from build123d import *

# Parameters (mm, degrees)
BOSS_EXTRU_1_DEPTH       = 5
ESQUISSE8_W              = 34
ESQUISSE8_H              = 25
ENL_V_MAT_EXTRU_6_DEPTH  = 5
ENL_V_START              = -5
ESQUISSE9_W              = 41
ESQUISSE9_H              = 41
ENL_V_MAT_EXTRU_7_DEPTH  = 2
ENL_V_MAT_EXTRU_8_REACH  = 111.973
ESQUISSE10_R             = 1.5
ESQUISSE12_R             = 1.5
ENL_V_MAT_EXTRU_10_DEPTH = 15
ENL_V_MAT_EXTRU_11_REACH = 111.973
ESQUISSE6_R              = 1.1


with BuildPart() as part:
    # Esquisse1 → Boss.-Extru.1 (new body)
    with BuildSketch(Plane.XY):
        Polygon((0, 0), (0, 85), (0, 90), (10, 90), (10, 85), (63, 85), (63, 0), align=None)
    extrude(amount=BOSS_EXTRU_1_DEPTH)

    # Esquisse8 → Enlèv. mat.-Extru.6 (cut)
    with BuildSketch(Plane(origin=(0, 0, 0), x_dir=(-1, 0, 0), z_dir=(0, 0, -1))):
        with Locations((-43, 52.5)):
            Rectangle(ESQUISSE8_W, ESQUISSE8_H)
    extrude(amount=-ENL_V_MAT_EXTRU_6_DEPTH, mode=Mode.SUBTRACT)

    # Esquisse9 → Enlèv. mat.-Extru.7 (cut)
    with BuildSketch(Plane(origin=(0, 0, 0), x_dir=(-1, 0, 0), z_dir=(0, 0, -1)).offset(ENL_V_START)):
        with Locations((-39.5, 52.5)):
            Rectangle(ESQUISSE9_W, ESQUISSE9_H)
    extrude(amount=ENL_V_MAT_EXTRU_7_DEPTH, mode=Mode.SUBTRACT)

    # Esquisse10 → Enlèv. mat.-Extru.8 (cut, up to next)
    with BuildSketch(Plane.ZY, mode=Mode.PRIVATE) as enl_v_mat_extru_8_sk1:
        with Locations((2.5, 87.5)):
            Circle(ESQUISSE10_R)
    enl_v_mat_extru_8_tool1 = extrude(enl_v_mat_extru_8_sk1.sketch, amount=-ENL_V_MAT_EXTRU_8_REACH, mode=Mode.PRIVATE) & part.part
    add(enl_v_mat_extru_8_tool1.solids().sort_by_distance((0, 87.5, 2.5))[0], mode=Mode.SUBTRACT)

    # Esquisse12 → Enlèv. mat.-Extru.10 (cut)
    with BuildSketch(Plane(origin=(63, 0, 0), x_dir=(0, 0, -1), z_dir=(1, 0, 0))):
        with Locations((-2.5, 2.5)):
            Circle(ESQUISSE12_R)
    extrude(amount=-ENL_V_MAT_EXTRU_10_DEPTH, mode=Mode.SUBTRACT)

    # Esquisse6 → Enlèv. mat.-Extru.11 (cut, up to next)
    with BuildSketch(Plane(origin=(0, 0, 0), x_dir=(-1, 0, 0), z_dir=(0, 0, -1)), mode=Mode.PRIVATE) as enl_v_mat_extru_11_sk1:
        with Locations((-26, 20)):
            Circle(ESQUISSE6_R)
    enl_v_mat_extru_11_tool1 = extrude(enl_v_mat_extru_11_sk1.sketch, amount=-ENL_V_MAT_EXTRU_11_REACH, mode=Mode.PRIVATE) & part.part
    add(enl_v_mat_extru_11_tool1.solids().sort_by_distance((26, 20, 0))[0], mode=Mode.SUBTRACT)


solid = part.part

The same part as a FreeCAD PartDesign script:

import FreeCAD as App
import Part
import Sketcher

doc = App.newDocument("Part")
body = doc.addObject("PartDesign::Body", "Body")

# Sketch on XY plane
sketch1 = body.newObject("Sketcher::SketchObject", "Sketch")
sketch1.AttachmentSupport = (doc.getObject("XY_Plane"), [""])
sketch1.MapMode = "FlatFace"
sketch1.addGeometry(Part.LineSegment(App.Vector(0, 90, 0), App.Vector(0, 0, 0)), False)
sketch1.addGeometry(Part.LineSegment(App.Vector(0, 0, 0), App.Vector(63, 0, 0)), False)
sketch1.addGeometry(Part.LineSegment(App.Vector(63, 0, 0), App.Vector(63, 85, 0)), False)
sketch1.addGeometry(Part.LineSegment(App.Vector(63, 85, 0), App.Vector(10, 85, 0)), False)
sketch1.addGeometry(Part.LineSegment(App.Vector(10, 85, 0), App.Vector(10, 90, 0)), False)
sketch1.addGeometry(Part.LineSegment(App.Vector(10, 90, 0), App.Vector(0, 90, 0)), False)
sketch1.addConstraint(Sketcher.Constraint("Coincident", 0, 2, 1, 1))
sketch1.addConstraint(Sketcher.Constraint("Coincident", 1, 2, 2, 1))
sketch1.addConstraint(Sketcher.Constraint("Coincident", 2, 2, 3, 1))
sketch1.addConstraint(Sketcher.Constraint("Coincident", 3, 2, 4, 1))
sketch1.addConstraint(Sketcher.Constraint("Coincident", 4, 2, 5, 1))
sketch1.addConstraint(Sketcher.Constraint("Coincident", 5, 2, 0, 1))
sketch1.addConstraint(Sketcher.Constraint("Vertical", 0))
sketch1.addConstraint(Sketcher.Constraint("Horizontal", 1))
sketch1.addConstraint(Sketcher.Constraint("Vertical", 2))
sketch1.addConstraint(Sketcher.Constraint("Horizontal", 3))
sketch1.addConstraint(Sketcher.Constraint("Vertical", 4))
sketch1.addConstraint(Sketcher.Constraint("Horizontal", 5))
sketch1.addConstraint(Sketcher.Constraint("Coincident", 0, 2, -1, 1))
sketch1.addConstraint(Sketcher.Constraint("DistanceX", 1, 1, 1, 2, 63.0))
sketch1.addConstraint(Sketcher.Constraint("DistanceX", 3, 2, 3, 1, 53.0))
sketch1.addConstraint(Sketcher.Constraint("DistanceY", 0, 2, 0, 1, 90.0))
sketch1.addConstraint(Sketcher.Constraint("DistanceY", 2, 1, 2, 2, 85.0))
pad1 = body.newObject("PartDesign::Pad", "Pad")
pad1.Profile = sketch1
pad1.Length = 5

# Sketch on XY plane
sketch2 = body.newObject("Sketcher::SketchObject", "Sketch001")
sketch2.AttachmentSupport = (doc.getObject("XY_Plane"), [""])
sketch2.MapMode = "FlatFace"
sketch2.addGeometry(Part.LineSegment(App.Vector(60, 65, 0), App.Vector(60, 40, 0)), False)
sketch2.addGeometry(Part.LineSegment(App.Vector(60, 40, 0), App.Vector(26, 40, 0)), False)
sketch2.addGeometry(Part.LineSegment(App.Vector(26, 40, 0), App.Vector(26, 65, 0)), False)
sketch2.addGeometry(Part.LineSegment(App.Vector(26, 65, 0), App.Vector(60, 65, 0)), False)
sketch2.addConstraint(Sketcher.Constraint("Coincident", 0, 2, 1, 1))
sketch2.addConstraint(Sketcher.Constraint("Coincident", 1, 2, 2, 1))
sketch2.addConstraint(Sketcher.Constraint("Coincident", 2, 2, 3, 1))
sketch2.addConstraint(Sketcher.Constraint("Coincident", 3, 2, 0, 1))
sketch2.addConstraint(Sketcher.Constraint("Vertical", 0))
sketch2.addConstraint(Sketcher.Constraint("Horizontal", 1))
sketch2.addConstraint(Sketcher.Constraint("Vertical", 2))
sketch2.addConstraint(Sketcher.Constraint("Horizontal", 3))
sketch2.addConstraint(Sketcher.Constraint("DistanceX", 1, 2, 1, 1, 34.0))
sketch2.addConstraint(Sketcher.Constraint("DistanceY", 0, 2, 0, 1, 25.0))
sketch2.addConstraint(Sketcher.Constraint("DistanceX", -1, 1, 0, 2, 60.0))
sketch2.addConstraint(Sketcher.Constraint("DistanceY", -1, 1, 0, 2, 40.0))
pocket1 = body.newObject("PartDesign::Pocket", "Pocket")
pocket1.Profile = sketch2
pocket1.Length = 5
pocket1.Reversed = True

# Sketch on XY plane
sketch3 = body.newObject("Sketcher::SketchObject", "Sketch002")
sketch3.AttachmentSupport = (doc.getObject("XY_Plane"), [""])
sketch3.MapMode = "FlatFace"
sketch3.AttachmentOffset = App.Placement(App.Vector(0, 0, 5), App.Rotation())
sketch3.addGeometry(Part.LineSegment(App.Vector(60, 73, 0), App.Vector(60, 32, 0)), False)
sketch3.addGeometry(Part.LineSegment(App.Vector(60, 32, 0), App.Vector(19, 32, 0)), False)
sketch3.addGeometry(Part.LineSegment(App.Vector(19, 32, 0), App.Vector(19, 73, 0)), False)
sketch3.addGeometry(Part.LineSegment(App.Vector(19, 73, 0), App.Vector(60, 73, 0)), False)
sketch3.addConstraint(Sketcher.Constraint("Coincident", 0, 2, 1, 1))
sketch3.addConstraint(Sketcher.Constraint("Coincident", 1, 2, 2, 1))
sketch3.addConstraint(Sketcher.Constraint("Coincident", 2, 2, 3, 1))
sketch3.addConstraint(Sketcher.Constraint("Coincident", 3, 2, 0, 1))
sketch3.addConstraint(Sketcher.Constraint("Vertical", 0))
sketch3.addConstraint(Sketcher.Constraint("Horizontal", 1))
sketch3.addConstraint(Sketcher.Constraint("Vertical", 2))
sketch3.addConstraint(Sketcher.Constraint("Horizontal", 3))
sketch3.addConstraint(Sketcher.Constraint("Equal", 3, 0))
sketch3.addConstraint(Sketcher.Constraint("DistanceX", 1, 2, 1, 1, 41.0))
sketch3.addConstraint(Sketcher.Constraint("DistanceX", -1, 1, 0, 2, 60.0))
sketch3.addConstraint(Sketcher.Constraint("DistanceY", -1, 1, 0, 2, 32.0))
pocket2 = body.newObject("PartDesign::Pocket", "Pocket001")
pocket2.Profile = sketch3
pocket2.Length = 2

# Sketch on YZ plane
sketch4 = body.newObject("Sketcher::SketchObject", "Sketch003")
sketch4.AttachmentSupport = (doc.getObject("YZ_Plane"), [""])
sketch4.MapMode = "FlatFace"
sketch4.addGeometry(Part.Circle(App.Vector(87.5, 2.5, 0), App.Vector(0, 0, 1), 1.5), False)
sketch4.addConstraint(Sketcher.Constraint("Diameter", 0, 3.0))
sketch4.addConstraint(Sketcher.Constraint("DistanceX", -1, 1, 0, 3, 87.5))
sketch4.addConstraint(Sketcher.Constraint("DistanceY", -1, 1, 0, 3, 2.5))
pocket3 = body.newObject("PartDesign::Pocket", "Pocket002")
pocket3.Profile = sketch4
pocket3.Type = "UpToFirst"
pocket3.Reversed = True

# Sketch on YZ plane
sketch5 = body.newObject("Sketcher::SketchObject", "Sketch004")
sketch5.AttachmentSupport = (doc.getObject("YZ_Plane"), [""])
sketch5.MapMode = "FlatFace"
sketch5.AttachmentOffset = App.Placement(App.Vector(0, 0, 63), App.Rotation())
sketch5.addGeometry(Part.Circle(App.Vector(2.5, 2.5, 0), App.Vector(0, 0, 1), 1.5), False)
sketch5.addConstraint(Sketcher.Constraint("Diameter", 0, 3.0))
sketch5.addConstraint(Sketcher.Constraint("DistanceX", -1, 1, 0, 3, 2.5))
sketch5.addConstraint(Sketcher.Constraint("DistanceY", -1, 1, 0, 3, 2.5))
pocket4 = body.newObject("PartDesign::Pocket", "Pocket003")
pocket4.Profile = sketch5
pocket4.Length = 15

# Sketch on XY plane
sketch6 = body.newObject("Sketcher::SketchObject", "Sketch005")
sketch6.AttachmentSupport = (doc.getObject("XY_Plane"), [""])
sketch6.MapMode = "FlatFace"
sketch6.addGeometry(Part.Circle(App.Vector(26, 20, 0), App.Vector(0, 0, 1), 1.1), False)
sketch6.addConstraint(Sketcher.Constraint("Diameter", 0, 2.2))
sketch6.addConstraint(Sketcher.Constraint("DistanceX", -1, 1, 0, 3, 26.0))
sketch6.addConstraint(Sketcher.Constraint("DistanceY", -1, 1, 0, 3, 20.0))
pocket5 = body.newObject("PartDesign::Pocket", "Pocket004")
pocket5.Profile = sketch6
pocket5.Type = "UpToFirst"
pocket5.Reversed = True

doc.recompute()
